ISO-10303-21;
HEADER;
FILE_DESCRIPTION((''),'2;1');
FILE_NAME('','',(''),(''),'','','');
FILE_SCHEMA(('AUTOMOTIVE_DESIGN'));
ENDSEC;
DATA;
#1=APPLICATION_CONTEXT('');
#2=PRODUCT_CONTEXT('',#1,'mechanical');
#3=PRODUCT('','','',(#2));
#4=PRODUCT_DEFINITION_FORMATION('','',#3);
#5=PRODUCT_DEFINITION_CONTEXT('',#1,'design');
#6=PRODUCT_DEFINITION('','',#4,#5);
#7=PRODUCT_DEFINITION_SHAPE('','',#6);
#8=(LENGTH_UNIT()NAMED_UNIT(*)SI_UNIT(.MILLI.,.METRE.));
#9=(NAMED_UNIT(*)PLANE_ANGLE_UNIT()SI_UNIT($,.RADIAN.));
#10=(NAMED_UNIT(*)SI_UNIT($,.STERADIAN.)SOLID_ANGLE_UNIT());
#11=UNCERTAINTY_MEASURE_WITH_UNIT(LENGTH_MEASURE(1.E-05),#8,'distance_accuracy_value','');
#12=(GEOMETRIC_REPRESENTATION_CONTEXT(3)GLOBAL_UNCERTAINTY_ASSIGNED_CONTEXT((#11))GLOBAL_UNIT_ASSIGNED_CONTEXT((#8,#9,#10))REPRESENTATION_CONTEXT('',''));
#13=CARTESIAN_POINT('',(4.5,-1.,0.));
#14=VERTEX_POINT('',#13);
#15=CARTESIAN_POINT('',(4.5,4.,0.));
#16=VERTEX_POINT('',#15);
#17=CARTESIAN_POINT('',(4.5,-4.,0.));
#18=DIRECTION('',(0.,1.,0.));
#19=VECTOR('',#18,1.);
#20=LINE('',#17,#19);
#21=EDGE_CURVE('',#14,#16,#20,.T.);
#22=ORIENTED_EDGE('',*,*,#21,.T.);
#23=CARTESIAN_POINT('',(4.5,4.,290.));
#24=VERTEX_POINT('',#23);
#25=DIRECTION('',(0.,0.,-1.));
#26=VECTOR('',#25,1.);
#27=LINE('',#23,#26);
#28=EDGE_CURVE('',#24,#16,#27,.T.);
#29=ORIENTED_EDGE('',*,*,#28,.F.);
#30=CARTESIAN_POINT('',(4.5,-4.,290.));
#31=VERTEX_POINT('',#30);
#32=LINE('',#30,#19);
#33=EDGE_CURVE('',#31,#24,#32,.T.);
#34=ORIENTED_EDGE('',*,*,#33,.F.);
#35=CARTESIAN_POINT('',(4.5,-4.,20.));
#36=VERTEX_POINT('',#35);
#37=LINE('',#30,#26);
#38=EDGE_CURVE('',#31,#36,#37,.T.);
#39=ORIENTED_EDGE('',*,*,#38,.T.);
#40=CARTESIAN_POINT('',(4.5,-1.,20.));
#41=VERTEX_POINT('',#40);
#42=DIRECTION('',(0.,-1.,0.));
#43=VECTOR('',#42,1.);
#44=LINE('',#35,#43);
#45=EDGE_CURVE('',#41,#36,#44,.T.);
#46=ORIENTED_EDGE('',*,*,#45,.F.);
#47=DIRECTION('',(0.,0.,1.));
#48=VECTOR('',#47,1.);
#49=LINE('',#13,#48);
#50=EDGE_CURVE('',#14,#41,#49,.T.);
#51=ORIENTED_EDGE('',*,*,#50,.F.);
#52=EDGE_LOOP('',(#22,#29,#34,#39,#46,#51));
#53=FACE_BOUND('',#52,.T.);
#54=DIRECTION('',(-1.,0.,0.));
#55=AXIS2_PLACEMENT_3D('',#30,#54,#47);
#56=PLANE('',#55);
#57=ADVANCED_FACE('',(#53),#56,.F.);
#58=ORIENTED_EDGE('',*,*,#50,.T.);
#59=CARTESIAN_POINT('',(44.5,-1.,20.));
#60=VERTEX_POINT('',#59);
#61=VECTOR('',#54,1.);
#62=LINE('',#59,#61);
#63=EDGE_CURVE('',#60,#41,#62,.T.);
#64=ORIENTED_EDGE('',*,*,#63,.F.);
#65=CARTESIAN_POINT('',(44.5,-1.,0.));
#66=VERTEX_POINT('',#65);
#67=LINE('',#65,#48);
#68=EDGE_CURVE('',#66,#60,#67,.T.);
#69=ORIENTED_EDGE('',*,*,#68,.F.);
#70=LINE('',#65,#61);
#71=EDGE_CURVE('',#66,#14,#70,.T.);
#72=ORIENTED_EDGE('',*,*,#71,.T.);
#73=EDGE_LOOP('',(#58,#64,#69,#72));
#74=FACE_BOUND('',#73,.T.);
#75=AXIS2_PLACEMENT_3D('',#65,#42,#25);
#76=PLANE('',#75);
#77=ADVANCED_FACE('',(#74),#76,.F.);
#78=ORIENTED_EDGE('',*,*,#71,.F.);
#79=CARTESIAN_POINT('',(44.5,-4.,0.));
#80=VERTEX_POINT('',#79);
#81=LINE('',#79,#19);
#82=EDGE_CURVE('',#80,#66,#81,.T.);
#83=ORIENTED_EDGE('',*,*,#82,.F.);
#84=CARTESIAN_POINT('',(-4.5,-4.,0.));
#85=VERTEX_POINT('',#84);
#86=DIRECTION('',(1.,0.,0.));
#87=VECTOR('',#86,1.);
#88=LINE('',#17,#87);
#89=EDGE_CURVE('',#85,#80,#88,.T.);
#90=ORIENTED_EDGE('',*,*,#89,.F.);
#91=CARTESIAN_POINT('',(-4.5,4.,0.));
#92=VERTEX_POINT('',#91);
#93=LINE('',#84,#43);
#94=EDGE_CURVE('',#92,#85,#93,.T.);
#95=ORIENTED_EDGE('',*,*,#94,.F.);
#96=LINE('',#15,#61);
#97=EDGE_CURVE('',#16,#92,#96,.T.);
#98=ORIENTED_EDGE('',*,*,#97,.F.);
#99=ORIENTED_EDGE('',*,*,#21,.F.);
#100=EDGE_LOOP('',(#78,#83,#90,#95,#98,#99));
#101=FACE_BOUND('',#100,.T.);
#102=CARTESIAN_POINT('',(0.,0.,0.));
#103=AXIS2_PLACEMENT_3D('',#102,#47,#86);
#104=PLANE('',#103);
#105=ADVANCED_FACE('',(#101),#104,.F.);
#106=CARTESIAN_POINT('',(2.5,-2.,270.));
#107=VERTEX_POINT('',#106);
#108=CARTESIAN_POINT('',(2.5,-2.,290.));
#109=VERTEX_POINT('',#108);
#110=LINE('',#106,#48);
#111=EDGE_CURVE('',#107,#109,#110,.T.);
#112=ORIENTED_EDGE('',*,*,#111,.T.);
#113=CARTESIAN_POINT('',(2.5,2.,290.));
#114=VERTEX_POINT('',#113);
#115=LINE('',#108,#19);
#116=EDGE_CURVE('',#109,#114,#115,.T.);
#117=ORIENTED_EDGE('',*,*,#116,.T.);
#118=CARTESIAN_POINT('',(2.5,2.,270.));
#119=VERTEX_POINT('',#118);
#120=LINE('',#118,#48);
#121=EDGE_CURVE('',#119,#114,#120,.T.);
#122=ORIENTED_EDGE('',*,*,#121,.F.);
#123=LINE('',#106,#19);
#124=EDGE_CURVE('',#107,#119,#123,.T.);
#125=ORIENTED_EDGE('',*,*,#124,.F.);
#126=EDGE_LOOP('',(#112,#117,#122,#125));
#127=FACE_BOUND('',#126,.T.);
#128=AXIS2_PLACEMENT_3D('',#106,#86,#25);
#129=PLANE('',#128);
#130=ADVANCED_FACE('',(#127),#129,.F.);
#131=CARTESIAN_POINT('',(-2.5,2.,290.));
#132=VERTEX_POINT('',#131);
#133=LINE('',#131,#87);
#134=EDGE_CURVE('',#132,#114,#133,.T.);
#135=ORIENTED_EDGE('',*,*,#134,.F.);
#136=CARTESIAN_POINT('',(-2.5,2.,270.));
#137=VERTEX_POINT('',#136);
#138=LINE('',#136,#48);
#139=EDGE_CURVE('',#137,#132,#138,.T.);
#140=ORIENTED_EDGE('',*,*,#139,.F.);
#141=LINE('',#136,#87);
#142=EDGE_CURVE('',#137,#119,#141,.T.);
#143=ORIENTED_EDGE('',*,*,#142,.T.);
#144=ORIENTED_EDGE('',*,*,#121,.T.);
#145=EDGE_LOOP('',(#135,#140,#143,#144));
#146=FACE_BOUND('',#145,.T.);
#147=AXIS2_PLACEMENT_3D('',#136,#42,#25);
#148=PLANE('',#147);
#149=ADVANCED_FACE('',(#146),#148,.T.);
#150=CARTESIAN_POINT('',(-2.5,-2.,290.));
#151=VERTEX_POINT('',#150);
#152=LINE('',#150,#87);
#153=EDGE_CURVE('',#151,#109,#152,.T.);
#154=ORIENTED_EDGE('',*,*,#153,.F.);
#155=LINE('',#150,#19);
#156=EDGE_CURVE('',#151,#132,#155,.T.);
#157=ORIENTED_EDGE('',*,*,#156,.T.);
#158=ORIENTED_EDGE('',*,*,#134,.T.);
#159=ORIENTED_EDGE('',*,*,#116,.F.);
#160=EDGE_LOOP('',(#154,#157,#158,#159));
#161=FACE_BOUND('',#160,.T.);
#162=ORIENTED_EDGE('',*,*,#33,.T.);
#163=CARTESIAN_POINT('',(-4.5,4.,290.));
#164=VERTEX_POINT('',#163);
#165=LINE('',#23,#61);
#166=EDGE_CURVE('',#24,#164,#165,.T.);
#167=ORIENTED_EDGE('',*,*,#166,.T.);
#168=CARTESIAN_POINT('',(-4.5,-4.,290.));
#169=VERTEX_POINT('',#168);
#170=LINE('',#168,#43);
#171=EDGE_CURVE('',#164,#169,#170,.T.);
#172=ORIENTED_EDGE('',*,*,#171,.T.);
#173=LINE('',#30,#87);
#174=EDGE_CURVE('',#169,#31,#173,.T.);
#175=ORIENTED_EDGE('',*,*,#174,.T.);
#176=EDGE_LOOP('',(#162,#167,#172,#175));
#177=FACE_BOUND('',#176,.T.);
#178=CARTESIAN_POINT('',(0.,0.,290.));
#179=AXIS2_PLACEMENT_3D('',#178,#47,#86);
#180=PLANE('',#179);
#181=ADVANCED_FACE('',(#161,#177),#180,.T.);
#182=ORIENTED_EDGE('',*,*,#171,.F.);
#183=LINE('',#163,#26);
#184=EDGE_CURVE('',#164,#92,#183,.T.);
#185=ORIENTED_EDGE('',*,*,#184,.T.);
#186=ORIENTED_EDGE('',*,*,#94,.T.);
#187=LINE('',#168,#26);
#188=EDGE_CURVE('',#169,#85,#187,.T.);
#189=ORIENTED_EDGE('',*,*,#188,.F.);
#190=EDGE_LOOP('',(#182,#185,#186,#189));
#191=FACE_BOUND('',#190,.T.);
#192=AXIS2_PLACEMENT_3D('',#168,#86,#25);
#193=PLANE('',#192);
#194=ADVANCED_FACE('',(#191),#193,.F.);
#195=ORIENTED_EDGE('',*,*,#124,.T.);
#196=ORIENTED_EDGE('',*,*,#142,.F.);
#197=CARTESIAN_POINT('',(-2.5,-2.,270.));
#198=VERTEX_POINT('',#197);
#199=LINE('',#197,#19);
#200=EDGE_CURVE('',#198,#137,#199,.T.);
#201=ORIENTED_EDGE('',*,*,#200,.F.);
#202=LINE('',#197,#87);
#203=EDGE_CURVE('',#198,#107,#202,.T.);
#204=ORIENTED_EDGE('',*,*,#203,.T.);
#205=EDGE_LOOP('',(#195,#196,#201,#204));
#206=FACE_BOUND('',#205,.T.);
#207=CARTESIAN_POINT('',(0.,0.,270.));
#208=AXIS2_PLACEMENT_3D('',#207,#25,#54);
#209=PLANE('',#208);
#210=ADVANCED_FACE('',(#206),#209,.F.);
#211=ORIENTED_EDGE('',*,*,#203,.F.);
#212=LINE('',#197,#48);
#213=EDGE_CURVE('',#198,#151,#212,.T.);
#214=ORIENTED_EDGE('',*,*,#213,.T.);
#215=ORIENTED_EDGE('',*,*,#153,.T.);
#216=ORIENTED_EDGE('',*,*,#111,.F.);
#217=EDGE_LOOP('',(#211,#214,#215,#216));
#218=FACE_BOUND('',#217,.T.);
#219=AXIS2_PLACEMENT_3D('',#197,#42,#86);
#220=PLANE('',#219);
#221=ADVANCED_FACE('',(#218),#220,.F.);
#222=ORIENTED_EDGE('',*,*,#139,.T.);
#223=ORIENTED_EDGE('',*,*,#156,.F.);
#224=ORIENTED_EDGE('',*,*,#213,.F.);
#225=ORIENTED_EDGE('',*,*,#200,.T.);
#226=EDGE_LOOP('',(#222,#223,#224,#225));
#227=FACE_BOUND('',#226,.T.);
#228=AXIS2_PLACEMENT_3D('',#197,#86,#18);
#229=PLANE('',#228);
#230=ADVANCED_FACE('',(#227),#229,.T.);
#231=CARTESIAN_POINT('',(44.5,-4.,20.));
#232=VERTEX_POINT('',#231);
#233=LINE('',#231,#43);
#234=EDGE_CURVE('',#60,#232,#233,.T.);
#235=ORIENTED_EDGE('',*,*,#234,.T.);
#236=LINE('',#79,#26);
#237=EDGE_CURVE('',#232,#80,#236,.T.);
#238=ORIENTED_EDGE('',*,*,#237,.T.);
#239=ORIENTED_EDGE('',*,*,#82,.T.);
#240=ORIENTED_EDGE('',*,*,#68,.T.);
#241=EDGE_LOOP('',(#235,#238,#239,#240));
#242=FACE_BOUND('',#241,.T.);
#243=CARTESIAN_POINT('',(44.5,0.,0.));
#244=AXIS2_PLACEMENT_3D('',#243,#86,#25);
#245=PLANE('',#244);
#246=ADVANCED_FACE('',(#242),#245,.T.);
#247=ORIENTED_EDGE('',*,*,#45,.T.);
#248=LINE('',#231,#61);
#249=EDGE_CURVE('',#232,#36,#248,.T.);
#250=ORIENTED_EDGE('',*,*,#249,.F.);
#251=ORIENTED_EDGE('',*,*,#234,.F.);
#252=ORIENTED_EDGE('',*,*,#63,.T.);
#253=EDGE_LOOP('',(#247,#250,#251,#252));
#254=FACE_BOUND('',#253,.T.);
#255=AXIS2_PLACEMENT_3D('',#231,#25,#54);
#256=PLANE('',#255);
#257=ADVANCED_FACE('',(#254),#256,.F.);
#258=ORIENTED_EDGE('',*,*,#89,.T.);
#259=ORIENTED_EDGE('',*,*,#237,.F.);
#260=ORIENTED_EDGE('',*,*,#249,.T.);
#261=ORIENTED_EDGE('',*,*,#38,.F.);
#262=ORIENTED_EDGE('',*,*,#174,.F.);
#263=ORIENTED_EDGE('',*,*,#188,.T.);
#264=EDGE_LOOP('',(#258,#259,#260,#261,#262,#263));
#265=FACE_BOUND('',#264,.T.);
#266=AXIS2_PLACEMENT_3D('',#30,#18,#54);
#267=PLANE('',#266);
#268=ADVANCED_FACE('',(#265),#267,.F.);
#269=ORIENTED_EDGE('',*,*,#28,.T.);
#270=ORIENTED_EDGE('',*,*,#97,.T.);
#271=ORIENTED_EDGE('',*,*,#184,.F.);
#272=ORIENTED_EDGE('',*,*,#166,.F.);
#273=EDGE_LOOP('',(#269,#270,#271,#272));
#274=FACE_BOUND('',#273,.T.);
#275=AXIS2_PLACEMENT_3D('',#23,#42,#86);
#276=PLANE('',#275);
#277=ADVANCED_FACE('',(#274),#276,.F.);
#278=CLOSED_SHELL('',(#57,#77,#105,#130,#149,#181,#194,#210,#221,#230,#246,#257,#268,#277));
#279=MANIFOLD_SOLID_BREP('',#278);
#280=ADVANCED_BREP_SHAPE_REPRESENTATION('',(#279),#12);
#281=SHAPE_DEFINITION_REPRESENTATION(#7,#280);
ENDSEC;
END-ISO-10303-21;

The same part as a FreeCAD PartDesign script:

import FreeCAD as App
import Part
import Sketcher

V = App.Vector


def add_polygon(sketch, points):
    """Adds a closed chain of lines whose ends are joined by coincident constraints."""
    first, n = sketch.GeometryCount, len(points)
    for a, b in zip(points, points[1:] + points[:1]):
        sketch.addGeometry(Part.LineSegment(App.Vector(*a, 0), App.Vector(*b, 0)), False)
    for i in range(n):
        sketch.addConstraint(Sketcher.Constraint("Coincident", first + i, 2, first + (i + 1) % n, 1))

doc = App.newDocument("Part")
body = doc.addObject("PartDesign::Body", "Body")

sketch1 = doc.addObject("Sketcher::SketchObject", "Sketch")
body.addObject(sketch1)
sketch1.AttachmentSupport = (doc.XY_Plane, [""])
sketch1.MapMode = "FlatFace"
add_polygon(sketch1, [(-4.5, 4), (-4.5, -4), (4.5, -4), (4.5, 4)])
sketch1.addConstraint(Sketcher.Constraint("Vertical", 0))
sketch1.addConstraint(Sketcher.Constraint("Horizontal", 1))
sketch1.addConstraint(Sketcher.Constraint("Vertical", 2))
sketch1.addConstraint(Sketcher.Constraint("Horizontal", 3))
sketch1.addConstraint(Sketcher.Constraint("Symmetric", 0, 2, 2, 2, -1, 1))
sketch1.addConstraint(Sketcher.Constraint("DistanceX", 1, 1, 1, 2, 9.0))
sketch1.addConstraint(Sketcher.Constraint("DistanceY", 0, 2, 0, 1, 8.0))
pad1 = doc.addObject("PartDesign::Pad", "Pad")
body.addObject(pad1)
pad1.Profile = sketch1
pad1.Length = 290

sketch2 = doc.addObject("Sketcher::SketchObject", "Sketch001")
body.addObject(sketch2)
sketch2.AttachmentSupport = (doc.YZ_Plane, [""])
sketch2.MapMode = "FlatFace"
sketch2.AttachmentOffset = App.Placement(V(0, 0, 4.5), App.Rotation())
add_polygon(sketch2, [(-1, 20), (-4, 20), (-4, 0), (-1, 0)])
sketch2.addConstraint(Sketcher.Constraint("Horizontal", 0))
sketch2.addConstraint(Sketcher.Constraint("Vertical", 1))
sketch2.addConstraint(Sketcher.Constraint("Horizontal", 2))
sketch2.addConstraint(Sketcher.Constraint("Vertical", 3))
sketch2.addConstraint(Sketcher.Constraint("PointOnObject", 1, 2, -1))
sketch2.addConstraint(Sketcher.Constraint("DistanceX", 0, 2, 0, 1, 3.0))
sketch2.addConstraint(Sketcher.Constraint("DistanceY", 1, 2, 1, 1, 20.0))
sketch2.addConstraint(Sketcher.Constraint("DistanceX", 0, 2, -1, 1, 4.0))
pad2 = doc.addObject("PartDesign::Pad", "Pad001")
body.addObject(pad2)
pad2.Profile = sketch2
pad2.Length = 40

sketch3 = doc.addObject("Sketcher::SketchObject", "Sketch002")
body.addObject(sketch3)
sketch3.AttachmentSupport = (doc.XY_Plane, [""])
sketch3.MapMode = "FlatFace"
sketch3.AttachmentOffset = App.Placement(V(0, 0, 290), App.Rotation())
add_polygon(sketch3, [(-2.5, 2), (-2.5, -2), (2.5, -2), (2.5, 2)])
sketch3.addConstraint(Sketcher.Constraint("Vertical", 0))
sketch3.addConstraint(Sketcher.Constraint("Horizontal", 1))
sketch3.addConstraint(Sketcher.Constraint("Vertical", 2))
sketch3.addConstraint(Sketcher.Constraint("Horizontal", 3))
sketch3.addConstraint(Sketcher.Constraint("Symmetric", 0, 2, 2, 2, -1, 1))
sketch3.addConstraint(Sketcher.Constraint("DistanceX", 1, 1, 1, 2, 5.0))
sketch3.addConstraint(Sketcher.Constraint("DistanceY", 0, 2, 0, 1, 4.0))
pocket1 = doc.addObject("PartDesign::Pocket", "Pocket")
body.addObject(pocket1)
pocket1.Profile = sketch3
pocket1.Length = 20

doc.recompute()
